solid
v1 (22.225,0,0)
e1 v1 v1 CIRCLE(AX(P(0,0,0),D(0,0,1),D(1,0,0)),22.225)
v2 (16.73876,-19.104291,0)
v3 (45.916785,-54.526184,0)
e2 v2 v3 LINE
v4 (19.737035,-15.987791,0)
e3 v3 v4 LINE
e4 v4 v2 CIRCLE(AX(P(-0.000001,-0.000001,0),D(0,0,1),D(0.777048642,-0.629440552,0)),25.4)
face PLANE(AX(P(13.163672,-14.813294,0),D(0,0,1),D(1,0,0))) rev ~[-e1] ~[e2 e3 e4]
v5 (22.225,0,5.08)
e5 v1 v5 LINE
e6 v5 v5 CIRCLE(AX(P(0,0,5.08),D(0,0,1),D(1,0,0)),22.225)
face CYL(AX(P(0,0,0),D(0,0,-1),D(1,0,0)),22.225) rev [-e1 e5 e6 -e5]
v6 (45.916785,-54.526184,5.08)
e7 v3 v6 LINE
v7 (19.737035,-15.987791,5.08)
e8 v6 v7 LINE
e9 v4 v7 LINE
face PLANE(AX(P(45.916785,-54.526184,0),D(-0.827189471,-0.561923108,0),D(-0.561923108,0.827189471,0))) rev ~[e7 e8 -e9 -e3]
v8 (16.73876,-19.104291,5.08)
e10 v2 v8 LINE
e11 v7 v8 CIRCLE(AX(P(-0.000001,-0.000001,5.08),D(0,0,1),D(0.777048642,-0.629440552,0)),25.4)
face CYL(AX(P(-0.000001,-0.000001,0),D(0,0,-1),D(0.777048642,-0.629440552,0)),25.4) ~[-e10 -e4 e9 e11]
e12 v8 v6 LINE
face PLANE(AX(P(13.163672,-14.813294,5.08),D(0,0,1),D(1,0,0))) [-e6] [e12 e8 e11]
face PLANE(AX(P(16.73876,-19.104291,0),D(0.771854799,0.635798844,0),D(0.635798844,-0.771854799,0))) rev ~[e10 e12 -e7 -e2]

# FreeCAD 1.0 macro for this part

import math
import FreeCAD as App
import Part
import Sketcher
Q = App.Units.Quantity

doc = App.newDocument("Part")
body = doc.addObject("PartDesign::Body", "Body")

# Sketch on XY plane
sketch1 = doc.addObject("Sketcher::SketchObject", "Sketch")
body.addObject(sketch1)
sketch1.AttachmentSupport = (doc.XY_Plane, [""])
sketch1.MapMode = "FlatFace"
sketch1.addGeometry(Part.LineSegment(App.Vector(45.916785, -54.526184, 0), App.Vector(19.737035, -15.987791, 0)), False)
sketch1.addGeometry(Part.ArcOfCircle(Part.Circle(App.Vector(-0.000001, -0.000001, 0), App.Vector(0, 0, 1), 25.4), math.radians(-39.00886), math.radians(311.224133)), False)
sketch1.addGeometry(Part.LineSegment(App.Vector(16.73876, -19.104291, 0), App.Vector(45.916785, -54.526184, 0)), False)
sketch1.addGeometry(Part.Circle(App.Vector(0, 0, 0), App.Vector(0, 0, 1), 22.225), False)
sketch1.addConstraint(Sketcher.Constraint("Coincident", 0, 2, 1, 1))
sketch1.addConstraint(Sketcher.Constraint("Coincident", 1, 2, 2, 1))
sketch1.addConstraint(Sketcher.Constraint("Coincident", 2, 2, 0, 1))
sketch1.addConstraint(Sketcher.Constraint("Coincident", 1, 3, -1, 1))
sketch1.addConstraint(Sketcher.Constraint("Coincident", 3, 3, -1, 1))
sketch1.addConstraint(Sketcher.Constraint("Radius", 1, Q("1 in")))
sketch1.addConstraint(Sketcher.Constraint("Diameter", 3, Q("1.75 in")))
sketch1.addConstraint(Sketcher.Constraint("DistanceY", 2, 2, -1, 1, Q("2.1467002 in")))
sketch1.addConstraint(Sketcher.Constraint("DistanceY", 1, 2, 0, 2, Q("3.1165 mm")))
sketch1.addConstraint(Sketcher.Constraint("Distance", 0, Q("46.589559 mm")))
sketch1.addConstraint(Sketcher.Constraint("DistanceY", 0, 2, -1, 1, Q("15.987791 mm")))
pad1 = doc.addObject("PartDesign::Pad", "Pad")
body.addObject(pad1)
pad1.Profile = sketch1
pad1.Length = Q("0.2 in")

doc.recompute()
